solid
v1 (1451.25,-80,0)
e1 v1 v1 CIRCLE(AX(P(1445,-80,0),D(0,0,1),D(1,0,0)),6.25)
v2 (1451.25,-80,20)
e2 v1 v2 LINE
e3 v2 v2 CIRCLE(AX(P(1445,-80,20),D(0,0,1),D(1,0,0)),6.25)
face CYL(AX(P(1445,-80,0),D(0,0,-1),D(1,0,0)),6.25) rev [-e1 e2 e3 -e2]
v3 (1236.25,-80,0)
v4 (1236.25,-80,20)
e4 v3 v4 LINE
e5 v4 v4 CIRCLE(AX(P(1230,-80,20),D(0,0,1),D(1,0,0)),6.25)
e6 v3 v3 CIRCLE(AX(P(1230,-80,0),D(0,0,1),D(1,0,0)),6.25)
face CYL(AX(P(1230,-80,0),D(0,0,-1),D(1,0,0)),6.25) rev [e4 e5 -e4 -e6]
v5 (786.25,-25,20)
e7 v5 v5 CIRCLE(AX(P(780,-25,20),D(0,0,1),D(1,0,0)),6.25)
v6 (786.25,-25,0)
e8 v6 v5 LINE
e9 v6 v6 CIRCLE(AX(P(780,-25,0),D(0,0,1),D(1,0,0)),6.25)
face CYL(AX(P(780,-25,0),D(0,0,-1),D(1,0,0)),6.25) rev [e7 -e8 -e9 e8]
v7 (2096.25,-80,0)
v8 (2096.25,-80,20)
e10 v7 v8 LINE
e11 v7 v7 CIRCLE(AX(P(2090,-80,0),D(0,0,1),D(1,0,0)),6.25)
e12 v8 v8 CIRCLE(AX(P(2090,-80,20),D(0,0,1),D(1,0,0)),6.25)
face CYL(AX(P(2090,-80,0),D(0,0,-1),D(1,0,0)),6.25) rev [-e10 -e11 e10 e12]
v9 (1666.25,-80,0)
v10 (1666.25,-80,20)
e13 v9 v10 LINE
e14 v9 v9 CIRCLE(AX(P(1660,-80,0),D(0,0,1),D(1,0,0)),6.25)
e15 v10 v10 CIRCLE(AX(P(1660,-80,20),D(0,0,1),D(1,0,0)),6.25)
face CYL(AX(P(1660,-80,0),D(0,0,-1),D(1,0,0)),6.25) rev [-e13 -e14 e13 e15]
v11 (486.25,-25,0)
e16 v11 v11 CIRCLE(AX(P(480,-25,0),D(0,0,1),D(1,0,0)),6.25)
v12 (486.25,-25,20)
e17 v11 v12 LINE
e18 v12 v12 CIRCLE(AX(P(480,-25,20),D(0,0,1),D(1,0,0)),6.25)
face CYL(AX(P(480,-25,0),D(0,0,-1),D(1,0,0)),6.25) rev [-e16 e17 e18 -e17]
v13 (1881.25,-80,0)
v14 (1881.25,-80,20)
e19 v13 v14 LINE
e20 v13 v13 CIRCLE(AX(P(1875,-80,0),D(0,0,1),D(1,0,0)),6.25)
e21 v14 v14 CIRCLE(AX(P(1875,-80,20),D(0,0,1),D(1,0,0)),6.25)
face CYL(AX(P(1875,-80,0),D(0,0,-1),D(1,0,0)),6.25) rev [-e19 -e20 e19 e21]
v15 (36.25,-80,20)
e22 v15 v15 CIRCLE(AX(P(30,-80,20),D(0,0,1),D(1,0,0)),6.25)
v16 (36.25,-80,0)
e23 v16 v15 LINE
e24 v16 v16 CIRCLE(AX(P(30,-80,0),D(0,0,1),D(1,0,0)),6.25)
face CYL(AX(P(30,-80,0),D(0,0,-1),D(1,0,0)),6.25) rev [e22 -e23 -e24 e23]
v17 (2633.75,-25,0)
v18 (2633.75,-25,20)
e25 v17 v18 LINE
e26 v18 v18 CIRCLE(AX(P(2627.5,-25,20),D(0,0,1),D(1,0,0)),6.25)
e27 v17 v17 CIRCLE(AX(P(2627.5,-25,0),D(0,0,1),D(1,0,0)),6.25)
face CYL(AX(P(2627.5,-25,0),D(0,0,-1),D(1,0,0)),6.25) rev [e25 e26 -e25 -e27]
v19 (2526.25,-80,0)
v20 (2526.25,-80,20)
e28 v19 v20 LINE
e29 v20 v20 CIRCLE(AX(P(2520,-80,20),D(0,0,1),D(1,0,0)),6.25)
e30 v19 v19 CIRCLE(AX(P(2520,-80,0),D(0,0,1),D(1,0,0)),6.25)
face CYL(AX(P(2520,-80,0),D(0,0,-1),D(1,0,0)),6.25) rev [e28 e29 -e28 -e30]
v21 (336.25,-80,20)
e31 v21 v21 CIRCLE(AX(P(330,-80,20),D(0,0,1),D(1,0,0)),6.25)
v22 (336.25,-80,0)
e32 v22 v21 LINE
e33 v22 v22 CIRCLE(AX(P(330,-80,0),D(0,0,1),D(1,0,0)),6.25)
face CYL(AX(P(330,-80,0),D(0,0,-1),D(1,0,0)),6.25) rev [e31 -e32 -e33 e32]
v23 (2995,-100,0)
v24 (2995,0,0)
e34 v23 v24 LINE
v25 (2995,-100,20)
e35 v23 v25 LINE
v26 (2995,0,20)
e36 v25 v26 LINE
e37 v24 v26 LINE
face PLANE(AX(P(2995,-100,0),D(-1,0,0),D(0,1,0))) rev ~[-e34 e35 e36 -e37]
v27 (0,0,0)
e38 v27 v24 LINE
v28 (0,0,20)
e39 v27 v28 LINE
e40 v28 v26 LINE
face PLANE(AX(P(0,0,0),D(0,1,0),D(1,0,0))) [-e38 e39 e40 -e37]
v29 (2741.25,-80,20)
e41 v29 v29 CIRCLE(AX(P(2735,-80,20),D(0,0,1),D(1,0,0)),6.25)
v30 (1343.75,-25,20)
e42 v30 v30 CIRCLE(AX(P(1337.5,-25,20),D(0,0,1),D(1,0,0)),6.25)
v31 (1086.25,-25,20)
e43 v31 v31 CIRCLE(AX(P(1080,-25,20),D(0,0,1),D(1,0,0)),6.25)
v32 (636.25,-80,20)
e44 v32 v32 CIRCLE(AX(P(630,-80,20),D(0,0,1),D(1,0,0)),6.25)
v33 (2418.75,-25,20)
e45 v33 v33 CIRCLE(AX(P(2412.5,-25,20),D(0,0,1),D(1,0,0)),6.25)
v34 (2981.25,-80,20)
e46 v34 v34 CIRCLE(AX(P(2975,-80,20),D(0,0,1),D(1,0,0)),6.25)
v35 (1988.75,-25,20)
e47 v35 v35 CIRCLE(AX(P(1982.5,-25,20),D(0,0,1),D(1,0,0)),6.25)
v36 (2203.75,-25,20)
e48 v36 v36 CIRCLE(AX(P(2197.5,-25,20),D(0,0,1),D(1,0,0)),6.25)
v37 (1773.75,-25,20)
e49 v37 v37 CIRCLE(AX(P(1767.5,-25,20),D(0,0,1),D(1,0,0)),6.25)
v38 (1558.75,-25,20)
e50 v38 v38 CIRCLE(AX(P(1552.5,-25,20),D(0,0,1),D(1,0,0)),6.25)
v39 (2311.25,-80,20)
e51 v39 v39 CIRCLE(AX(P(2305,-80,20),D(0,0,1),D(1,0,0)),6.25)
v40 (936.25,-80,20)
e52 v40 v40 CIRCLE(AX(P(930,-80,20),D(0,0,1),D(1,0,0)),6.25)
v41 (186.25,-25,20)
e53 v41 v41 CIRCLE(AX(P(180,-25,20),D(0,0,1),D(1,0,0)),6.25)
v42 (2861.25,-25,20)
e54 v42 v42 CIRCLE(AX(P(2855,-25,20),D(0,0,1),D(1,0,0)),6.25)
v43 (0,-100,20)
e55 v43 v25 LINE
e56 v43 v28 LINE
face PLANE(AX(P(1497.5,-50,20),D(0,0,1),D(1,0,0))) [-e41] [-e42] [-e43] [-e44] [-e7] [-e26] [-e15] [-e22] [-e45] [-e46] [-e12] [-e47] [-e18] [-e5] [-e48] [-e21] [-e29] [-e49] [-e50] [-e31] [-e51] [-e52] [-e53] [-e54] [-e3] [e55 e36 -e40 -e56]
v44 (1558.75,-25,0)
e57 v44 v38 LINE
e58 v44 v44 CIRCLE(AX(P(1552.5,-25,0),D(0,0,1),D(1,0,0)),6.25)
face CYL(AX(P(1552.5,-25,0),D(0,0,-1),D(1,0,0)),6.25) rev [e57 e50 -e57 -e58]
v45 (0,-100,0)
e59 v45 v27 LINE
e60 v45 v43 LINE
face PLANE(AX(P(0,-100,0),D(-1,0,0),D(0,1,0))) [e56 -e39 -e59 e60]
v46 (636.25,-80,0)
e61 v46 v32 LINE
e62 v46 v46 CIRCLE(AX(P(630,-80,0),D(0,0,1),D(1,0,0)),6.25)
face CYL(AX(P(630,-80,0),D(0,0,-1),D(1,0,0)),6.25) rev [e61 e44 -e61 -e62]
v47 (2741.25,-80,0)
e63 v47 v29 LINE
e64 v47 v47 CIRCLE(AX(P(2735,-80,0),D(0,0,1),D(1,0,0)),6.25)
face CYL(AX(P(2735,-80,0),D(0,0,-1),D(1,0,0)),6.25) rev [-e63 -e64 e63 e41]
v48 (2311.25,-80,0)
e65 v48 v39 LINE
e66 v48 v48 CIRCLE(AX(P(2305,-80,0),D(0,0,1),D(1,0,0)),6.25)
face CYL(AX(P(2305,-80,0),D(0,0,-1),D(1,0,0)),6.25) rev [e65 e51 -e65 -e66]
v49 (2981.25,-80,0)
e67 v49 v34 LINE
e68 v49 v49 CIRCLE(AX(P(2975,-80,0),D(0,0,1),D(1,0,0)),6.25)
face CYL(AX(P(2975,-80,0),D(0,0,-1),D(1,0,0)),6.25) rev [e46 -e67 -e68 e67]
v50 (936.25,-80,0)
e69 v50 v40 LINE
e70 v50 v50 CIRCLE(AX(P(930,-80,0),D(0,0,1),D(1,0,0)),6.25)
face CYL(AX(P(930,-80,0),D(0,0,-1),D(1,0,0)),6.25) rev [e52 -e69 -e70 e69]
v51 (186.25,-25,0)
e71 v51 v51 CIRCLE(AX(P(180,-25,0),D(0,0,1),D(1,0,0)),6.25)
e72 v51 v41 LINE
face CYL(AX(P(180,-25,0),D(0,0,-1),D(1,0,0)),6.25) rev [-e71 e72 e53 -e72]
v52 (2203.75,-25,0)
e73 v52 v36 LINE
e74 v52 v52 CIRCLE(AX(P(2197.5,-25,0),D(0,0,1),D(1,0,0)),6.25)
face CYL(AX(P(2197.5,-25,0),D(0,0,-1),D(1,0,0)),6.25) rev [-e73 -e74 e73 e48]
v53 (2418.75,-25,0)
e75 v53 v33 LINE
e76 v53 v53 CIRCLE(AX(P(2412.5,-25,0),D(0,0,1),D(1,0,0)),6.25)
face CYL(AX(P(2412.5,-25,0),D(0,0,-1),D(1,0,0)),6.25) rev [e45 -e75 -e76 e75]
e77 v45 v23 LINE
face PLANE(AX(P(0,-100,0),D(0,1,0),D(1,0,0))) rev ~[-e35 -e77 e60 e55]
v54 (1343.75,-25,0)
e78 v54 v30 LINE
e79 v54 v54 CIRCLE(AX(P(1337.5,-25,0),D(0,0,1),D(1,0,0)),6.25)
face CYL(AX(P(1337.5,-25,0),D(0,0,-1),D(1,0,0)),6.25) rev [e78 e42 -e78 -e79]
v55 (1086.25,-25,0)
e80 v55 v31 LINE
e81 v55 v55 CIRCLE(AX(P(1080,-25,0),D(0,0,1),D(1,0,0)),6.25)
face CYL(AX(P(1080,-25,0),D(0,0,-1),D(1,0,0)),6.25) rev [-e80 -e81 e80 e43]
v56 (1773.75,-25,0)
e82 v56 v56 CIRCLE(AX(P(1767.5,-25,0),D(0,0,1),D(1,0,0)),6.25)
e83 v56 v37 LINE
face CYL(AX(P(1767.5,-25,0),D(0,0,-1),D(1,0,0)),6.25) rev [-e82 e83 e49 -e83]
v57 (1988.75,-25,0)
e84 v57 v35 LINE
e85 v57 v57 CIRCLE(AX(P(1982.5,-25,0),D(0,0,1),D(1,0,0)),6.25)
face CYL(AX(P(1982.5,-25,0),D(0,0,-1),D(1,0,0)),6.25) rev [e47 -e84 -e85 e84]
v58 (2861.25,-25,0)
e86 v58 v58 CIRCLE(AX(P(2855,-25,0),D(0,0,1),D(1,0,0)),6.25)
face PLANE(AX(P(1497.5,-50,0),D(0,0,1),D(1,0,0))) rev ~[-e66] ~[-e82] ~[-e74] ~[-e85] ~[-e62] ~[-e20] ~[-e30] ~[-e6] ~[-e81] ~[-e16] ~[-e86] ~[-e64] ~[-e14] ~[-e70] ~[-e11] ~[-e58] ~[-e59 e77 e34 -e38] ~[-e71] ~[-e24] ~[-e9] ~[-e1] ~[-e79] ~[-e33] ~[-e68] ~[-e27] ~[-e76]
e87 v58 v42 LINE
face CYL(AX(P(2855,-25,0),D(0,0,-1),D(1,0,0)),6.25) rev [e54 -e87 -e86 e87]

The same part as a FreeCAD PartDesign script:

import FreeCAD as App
import Part
import Sketcher
from FreeCAD import Vector


def add_polygon(sketch, points):
    """Adds a closed chain of lines whose ends are joined by coincident constraints."""
    first, n = sketch.GeometryCount, len(points)
    for a, b in zip(points, points[1:] + points[:1]):
        sketch.addGeometry(Part.LineSegment(App.Vector(*a, 0), App.Vector(*b, 0)), False)
    for i in range(n):
        sketch.addConstraint(Sketcher.Constraint("Coincident", first + i, 2, first + (i + 1) % n, 1))

doc = App.newDocument("Part")
body = doc.addObject("PartDesign::Body", "Body")

# Sketch on XY plane
sketch1 = doc.addObject("Sketcher::SketchObject", "Sketch")
body.addObject(sketch1)
sketch1.AttachmentSupport = (doc.XY_Plane, [""])
sketch1.MapMode = "FlatFace"
add_polygon(sketch1, [(0, 0), (0, -100), (2995, -100), (2995, 0)])  # lines 0-3
sketch1.addGeometry(Part.Circle(Vector(30, -80, 0), Vector(0, 0, 1), 6), False)  # 4
sketch1.addGeometry(Part.Circle(Vector(330, -80, 0), Vector(0, 0, 1), 6), False)  # 5
sketch1.addGeometry(Part.Circle(Vector(630, -80, 0), Vector(0, 0, 1), 6), False)  # 6
sketch1.addGeometry(Part.Circle(Vector(930, -80, 0), Vector(0, 0, 1), 6), False)  # 7
sketch1.addGeometry(Part.Circle(Vector(1230, -80, 0), Vector(0, 0, 1), 6), False)  # 8
sketch1.addGeometry(Part.Circle(Vector(1445, -80, 0), Vector(0, 0, 1), 6), False)  # 9
sketch1.addGeometry(Part.Circle(Vector(1660, -80, 0), Vector(0, 0, 1), 6), False)  # 10
sketch1.addGeometry(Part.Circle(Vector(1875, -80, 0), Vector(0, 0, 1), 6), False)  # 11
sketch1.addGeometry(Part.Circle(Vector(2090, -80, 0), Vector(0, 0, 1), 6), False)  # 12
sketch1.addGeometry(Part.Circle(Vector(2305, -80, 0), Vector(0, 0, 1), 6), False)  # 13
sketch1.addGeometry(Part.Circle(Vector(2520, -80, 0), Vector(0, 0, 1), 6), False)  # 14
sketch1.addGeometry(Part.Circle(Vector(2735, -80, 0), Vector(0, 0, 1), 6), False)  # 15
sketch1.addGeometry(Part.Circle(Vector(2975, -80, 0), Vector(0, 0, 1), 6), False)  # 16
sketch1.addGeometry(Part.Circle(Vector(180, -25, 0), Vector(0, 0, 1), 6), False)  # 17
sketch1.addGeometry(Part.Circle(Vector(480, -25, 0), Vector(0, 0, 1), 6), False)  # 18
sketch1.addGeometry(Part.Circle(Vector(780, -25, 0), Vector(0, 0, 1), 6), False)  # 19
sketch1.addGeometry(Part.Circle(Vector(1080, -25, 0), Vector(0, 0, 1), 6), False)  # 20
sketch1.addGeometry(Part.Circle(Vector(1338, -25, 0), Vector(0, 0, 1), 6), False)  # 21
sketch1.addGeometry(Part.Circle(Vector(1552, -25, 0), Vector(0, 0, 1), 6), False)  # 22
sketch1.addGeometry(Part.Circle(Vector(1768, -25, 0), Vector(0, 0, 1), 6), False)  # 23
sketch1.addGeometry(Part.Circle(Vector(1982, -25, 0), Vector(0, 0, 1), 6), False)  # 24
sketch1.addGeometry(Part.Circle(Vector(2198, -25, 0), Vector(0, 0, 1), 6), False)  # 25
sketch1.addGeometry(Part.Circle(Vector(2412, -25, 0), Vector(0, 0, 1), 6), False)  # 26
sketch1.addGeometry(Part.Circle(Vector(2628, -25, 0), Vector(0, 0, 1), 6), False)  # 27
sketch1.addGeometry(Part.Circle(Vector(2855, -25, 0), Vector(0, 0, 1), 6), False)  # 28
sketch1.addConstraint([
    Sketcher.Constraint("Vertical", 0),
    Sketcher.Constraint("Horizontal", 1),
    Sketcher.Constraint("Vertical", 2),
    Sketcher.Constraint("Horizontal", 3),
    Sketcher.Constraint("Coincident", 3, 2, -1, 1),
    Sketcher.Constraint("Equal", 4, 5),
    Sketcher.Constraint("Equal", 5, 6),
    Sketcher.Constraint("Equal", 6, 7),
    Sketcher.Constraint("Equal", 7, 8),
    Sketcher.Constraint("Equal", 8, 9),
    Sketcher.Constraint("Equal", 9, 10),
    Sketcher.Constraint("Equal", 10, 11),
    Sketcher.Constraint("Equal", 11, 12),
    Sketcher.Constraint("Equal", 12, 13),
    Sketcher.Constraint("Equal", 13, 14),
    Sketcher.Constraint("Equal", 14, 15),
    Sketcher.Constraint("Equal", 15, 16),
    Sketcher.Constraint("Equal", 16, 17),
    Sketcher.Constraint("Equal", 17, 18),
    Sketcher.Constraint("Equal", 18, 19),
    Sketcher.Constraint("Equal", 19, 20),
    Sketcher.Constraint("Equal", 20, 21),
    Sketcher.Constraint("Equal", 21, 22),
    Sketcher.Constraint("Equal", 22, 23),
    Sketcher.Constraint("Equal", 23, 24),
    Sketcher.Constraint("Equal", 24, 25),
    Sketcher.Constraint("Equal", 25, 26),
    Sketcher.Constraint("Equal", 26, 27),
    Sketcher.Constraint("Equal", 27, 28),
    Sketcher.Constraint("Horizontal", 4, 3, 5, 3),
    Sketcher.Constraint("Horizontal", 5, 3, 6, 3),
    Sketcher.Constraint("Horizontal", 6, 3, 7, 3),
    Sketcher.Constraint("Horizontal", 7, 3, 8, 3),
    Sketcher.Constraint("Horizontal", 8, 3, 9, 3),
    Sketcher.Constraint("Horizontal", 9, 3, 10, 3),
    Sketcher.Constraint("Horizontal", 10, 3, 11, 3),
    Sketcher.Constraint("Horizontal", 11, 3, 12, 3),
    Sketcher.Constraint("Horizontal", 12, 3, 13, 3),
    Sketcher.Constraint("Horizontal", 13, 3, 14, 3),
    Sketcher.Constraint("Horizontal", 14, 3, 15, 3),
    Sketcher.Constraint("Horizontal", 15, 3, 16, 3),
    Sketcher.Constraint("Horizontal", 17, 3, 18, 3),
    Sketcher.Constraint("Horizontal", 18, 3, 19, 3),
    Sketcher.Constraint("Horizontal", 19, 3, 20, 3),
    Sketcher.Constraint("Horizontal", 20, 3, 21, 3),
    Sketcher.Constraint("Horizontal", 21, 3, 22, 3),
    Sketcher.Constraint("Horizontal", 22, 3, 23, 3),
    Sketcher.Constraint("Horizontal", 23, 3, 24, 3),
    Sketcher.Constraint("Horizontal", 24, 3, 25, 3),
    Sketcher.Constraint("Horizontal", 25, 3, 26, 3),
    Sketcher.Constraint("Horizontal", 26, 3, 27, 3),
    Sketcher.Constraint("Horizontal", 27, 3, 28, 3),
    Sketcher.Constraint("Diameter", 4, 12.5),
    Sketcher.Constraint("DistanceX", 1, 1, 1, 2, 2995.0),
    Sketcher.Constraint("DistanceY", 0, 2, 0, 1, 100.0),
    Sketcher.Constraint("DistanceX", -1, 1, 4, 3, 30.0),
    Sketcher.Constraint("DistanceY", 4, 3, -1, 1, 80.0),
    Sketcher.Constraint("DistanceX", -1, 1, 5, 3, 330.0),
    Sketcher.Constraint("DistanceX", -1, 1, 6, 3, 630.0),
    Sketcher.Constraint("DistanceX", -1, 1, 7, 3, 930.0),
    Sketcher.Constraint("DistanceX", -1, 1, 8, 3, 1230.0),
    Sketcher.Constraint("DistanceX", -1, 1, 9, 3, 1445.0),
    Sketcher.Constraint("DistanceX", -1, 1, 10, 3, 1660.0),
    Sketcher.Constraint("DistanceX", -1, 1, 11, 3, 1875.0),
    Sketcher.Constraint("DistanceX", -1, 1, 12, 3, 2090.0),
    Sketcher.Constraint("DistanceX", -1, 1, 13, 3, 2305.0),
    Sketcher.Constraint("DistanceX", -1, 1, 14, 3, 2520.0),
    Sketcher.Constraint("DistanceX", -1, 1, 15, 3, 2735.0),
    Sketcher.Constraint("DistanceX", -1, 1, 16, 3, 2975.0),
    Sketcher.Constraint("DistanceX", -1, 1, 17, 3, 180.0),
    Sketcher.Constraint("DistanceY", 17, 3, -1, 1, 25.0),
    Sketcher.Constraint("DistanceX", -1, 1, 18, 3, 480.0),
    Sketcher.Constraint("DistanceX", -1, 1, 19, 3, 780.0),
    Sketcher.Constraint("DistanceX", -1, 1, 20, 3, 1080.0),
    Sketcher.Constraint("DistanceX", -1, 1, 28, 3, 2855.0),
    Sketcher.Constraint("DistanceX", 21, 3, 22, 3, 215.0),
    Sketcher.Constraint("DistanceX", 22, 3, 23, 3, 215.0),
    Sketcher.Constraint("DistanceX", 23, 3, 24, 3, 215.0),
    Sketcher.Constraint("DistanceX", 24, 3, 25, 3, 215.0),
    Sketcher.Constraint("DistanceX", 25, 3, 26, 3, 215.0),
    Sketcher.Constraint("DistanceX", 26, 3, 27, 3, 215.0),
    Sketcher.Constraint("DistanceX", -1, 1, 21, 3, 1337.5),
])
pad1 = doc.addObject("PartDesign::Pad", "Pad")
body.addObject(pad1)
pad1.Profile = sketch1
pad1.Length = 20

doc.recompute()
